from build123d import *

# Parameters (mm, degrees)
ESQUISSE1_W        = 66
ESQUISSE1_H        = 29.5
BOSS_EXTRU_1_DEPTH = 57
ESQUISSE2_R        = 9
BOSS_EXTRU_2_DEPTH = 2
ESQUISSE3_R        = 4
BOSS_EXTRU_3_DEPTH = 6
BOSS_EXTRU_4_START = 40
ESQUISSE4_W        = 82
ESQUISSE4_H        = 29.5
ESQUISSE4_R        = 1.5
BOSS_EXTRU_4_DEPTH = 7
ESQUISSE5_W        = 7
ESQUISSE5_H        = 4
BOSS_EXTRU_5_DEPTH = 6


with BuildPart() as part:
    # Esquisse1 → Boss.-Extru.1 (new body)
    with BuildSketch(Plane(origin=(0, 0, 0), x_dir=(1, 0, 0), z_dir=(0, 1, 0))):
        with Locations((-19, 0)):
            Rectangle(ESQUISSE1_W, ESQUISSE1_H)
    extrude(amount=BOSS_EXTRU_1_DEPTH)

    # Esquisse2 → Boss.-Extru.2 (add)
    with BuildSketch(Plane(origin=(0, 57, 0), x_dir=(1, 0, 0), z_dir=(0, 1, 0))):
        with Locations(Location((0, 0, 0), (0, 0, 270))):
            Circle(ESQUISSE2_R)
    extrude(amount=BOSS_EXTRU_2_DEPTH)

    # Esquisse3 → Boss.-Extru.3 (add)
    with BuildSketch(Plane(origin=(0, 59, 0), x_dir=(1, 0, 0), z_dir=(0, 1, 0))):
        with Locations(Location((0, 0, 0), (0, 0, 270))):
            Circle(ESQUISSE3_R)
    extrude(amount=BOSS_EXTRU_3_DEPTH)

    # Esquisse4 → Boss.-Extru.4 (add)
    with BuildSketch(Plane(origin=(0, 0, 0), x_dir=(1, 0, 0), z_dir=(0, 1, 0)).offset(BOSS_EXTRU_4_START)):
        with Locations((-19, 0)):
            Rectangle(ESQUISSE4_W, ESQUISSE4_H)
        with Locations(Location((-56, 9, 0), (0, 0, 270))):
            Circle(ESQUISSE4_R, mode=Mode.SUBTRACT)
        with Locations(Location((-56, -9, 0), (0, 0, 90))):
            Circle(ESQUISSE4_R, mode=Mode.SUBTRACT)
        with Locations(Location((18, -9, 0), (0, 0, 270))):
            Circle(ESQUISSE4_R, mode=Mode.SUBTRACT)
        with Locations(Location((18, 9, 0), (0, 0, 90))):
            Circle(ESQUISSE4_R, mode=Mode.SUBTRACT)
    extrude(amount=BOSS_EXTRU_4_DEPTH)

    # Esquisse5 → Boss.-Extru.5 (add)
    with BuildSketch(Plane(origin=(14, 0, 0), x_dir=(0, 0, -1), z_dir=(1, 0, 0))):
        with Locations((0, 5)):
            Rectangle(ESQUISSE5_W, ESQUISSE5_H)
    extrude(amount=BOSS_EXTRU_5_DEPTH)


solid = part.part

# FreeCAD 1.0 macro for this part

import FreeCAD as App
import Part
import Sketcher
from FreeCAD import Vector


def add_polygon(sketch, points):
    """Adds a closed chain of lines whose ends are joined by coincident constraints."""
    first, n = sketch.GeometryCount, len(points)
    for a, b in zip(points, points[1:] + points[:1]):
        sketch.addGeometry(Part.LineSegment(App.Vector(*a, 0), App.Vector(*b, 0)), False)
    for i in range(n):
        sketch.addConstraint(Sketcher.Constraint("Coincident", first + i, 2, first + (i + 1) % n, 1))

doc = App.newDocument("Part")
params = doc.addObject("Spreadsheet::Sheet", "Params")
for row, (alias, value) in enumerate([
    ("sketch1_width", "66 mm"),
    ("sketch1_height", "29.5 mm"),
    ("pad1_length", "57 mm"),
    ("sketch2_diameter", "18 mm"),
    ("pad2_length", "2 mm"),
    ("sketch3_diameter", "8 mm"),
    ("pad3_length", "6 mm"),
    ("sketch4_diameter", "3 mm"),
    ("sketch4_width", "82 mm"),
    ("sketch4_height", "29.5 mm"),
    ("pad4_length", "7 mm"),
    ("sketch5_width", "4 mm"),
    ("sketch5_height", "7 mm"),
    ("pad5_length", "6 mm"),
], start=1):
    params.set(f"A{row}", alias)
    params.set(f"B{row}", "=" + value)
    params.setAlias(f"B{row}", alias)

body = doc.addObject("PartDesign::Body", "Body")

sketch1 = doc.addObject("Sketcher::SketchObject", "Sketch")
body.addObject(sketch1)
sketch1.AttachmentSupport = (doc.XZ_Plane, [""])
sketch1.MapMode = "FlatFace"
add_polygon(sketch1, [(-52, -15), (-52, 15), (14, 15), (14, -15)])
sketch1.addConstraint([
    Sketcher.Constraint("Vertical", 0),
    Sketcher.Constraint("Horizontal", 1),
    Sketcher.Constraint("Vertical", 2),
    Sketcher.Constraint("Horizontal", 3),
    Sketcher.Constraint("DistanceX", 1, 1, 1, 2, 66.0),
    Sketcher.Constraint("DistanceY", 0, 1, 0, 2, 29.5),
    Sketcher.Constraint("DistanceX", 0, 2, -1, 1, 52.0),
    Sketcher.Constraint("DistanceY", -1, 1, 0, 2, 14.75),
])
sketch1.setExpression("Constraints[8]", "Params.sketch1_width")
sketch1.setExpression("Constraints[9]", "Params.sketch1_height")
pad1 = doc.addObject("PartDesign::Pad", "Pad")
body.addObject(pad1)
pad1.Profile = sketch1
pad1.setExpression("Length", "Params.pad1_length")
pad1.Reversed = True

sketch2 = doc.addObject("Sketcher::SketchObject", "Sketch001")
body.addObject(sketch2)
sketch2.AttachmentSupport = (doc.XZ_Plane, [""])
sketch2.MapMode = "FlatFace"
sketch2.AttachmentOffset = App.Placement(Vector(0, 0, -57), App.Rotation())
sketch2.addGeometry(Part.Circle(Vector(0, 0, 0), Vector(0, 0, 1), 9), False)
sketch2.addConstraint([
    Sketcher.Constraint("Coincident", 0, 3, -1, 1),
    Sketcher.Constraint("Diameter", 0, 18.0),
])
sketch2.setExpression("Constraints[1]", "Params.sketch2_diameter")
pad2 = doc.addObject("PartDesign::Pad", "Pad001")
body.addObject(pad2)
pad2.Profile = sketch2
pad2.setExpression("Length", "Params.pad2_length")
pad2.Reversed = True

sketch3 = doc.addObject("Sketcher::SketchObject", "Sketch002")
body.addObject(sketch3)
sketch3.AttachmentSupport = (doc.XZ_Plane, [""])
sketch3.MapMode = "FlatFace"
sketch3.AttachmentOffset = App.Placement(Vector(0, 0, -59), App.Rotation())
sketch3.addGeometry(Part.Circle(Vector(0, 0, 0), Vector(0, 0, 1), 4), False)
sketch3.addConstraint([
    Sketcher.Constraint("Coincident", 0, 3, -1, 1),
    Sketcher.Constraint("Diameter", 0, 8.0),
])
sketch3.setExpression("Constraints[1]", "Params.sketch3_diameter")
pad3 = doc.addObject("PartDesign::Pad", "Pad002")
body.addObject(pad3)
pad3.Profile = sketch3
pad3.setExpression("Length", "Params.pad3_length")
pad3.Reversed = True

sketch4 = doc.addObject("Sketcher::SketchObject", "Sketch003")
body.addObject(sketch4)
sketch4.AttachmentSupport = (doc.XZ_Plane, [""])
sketch4.MapMode = "FlatFace"
sketch4.AttachmentOffset = App.Placement(Vector(0, 0, -40), App.Rotation())
add_polygon(sketch4, [(-60, -14.8), (-60, 14.8), (22, 14.8), (22, -14.8)])
sketch4.addGeometry(Part.Circle(Vector(-56, 9, 0), Vector(0, 0, 1), 1.5), False)
sketch4.addGeometry(Part.Circle(Vector(18, 9, 0), Vector(0, 0, 1), 1.5), False)
sketch4.addGeometry(Part.Circle(Vector(-56, -9, 0), Vector(0, 0, 1), 1.5), False)
sketch4.addGeometry(Part.Circle(Vector(18, -9, 0), Vector(0, 0, 1), 1.5), False)
sketch4.addConstraint([
    Sketcher.Constraint("Vertical", 0),
    Sketcher.Constraint("Horizontal", 1),
    Sketcher.Constraint("Vertical", 2),
    Sketcher.Constraint("Horizontal", 3),
    Sketcher.Constraint("Equal", 4, 5),
    Sketcher.Constraint("Equal", 5, 6),
    Sketcher.Constraint("Equal", 6, 7),
    Sketcher.Constraint("Symmetric", 4, 3, 6, 3, -1),
    Sketcher.Constraint("Symmetric", 5, 3, 7, 3, -1),
    Sketcher.Constraint("Horizontal", 4, 3, 5, 3),
    Sketcher.Constraint("Diameter", 4, 3.0),
    Sketcher.Constraint("DistanceX", 1, 1, 1, 2, 82.0),
    Sketcher.Constraint("DistanceY", 0, 1, 0, 2, 29.5),
    Sketcher.Constraint("DistanceX", 4, 3, -1, 1, 56.0),
    Sketcher.Constraint("DistanceY", -1, 1, 4, 3, 9.0),
    Sketcher.Constraint("DistanceX", -1, 1, 5, 3, 18.0),
    Sketcher.Constraint("DistanceX", 0, 2, -1, 1, 60.0),
    Sketcher.Constraint("DistanceY", -1, 1, 0, 2, 14.75),
])
sketch4.setExpression("Constraints[14]", "Params.sketch4_diameter")
sketch4.setExpression("Constraints[15]", "Params.sketch4_width")
sketch4.setExpression("Constraints[16]", "Params.sketch4_height")
pad4 = doc.addObject("PartDesign::Pad", "Pad003")
body.addObject(pad4)
pad4.Profile = sketch4
pad4.setExpression("Length", "Params.pad4_length")
pad4.Reversed = True

sketch5 = doc.addObject("Sketcher::SketchObject", "Sketch004")
body.addObject(sketch5)
sketch5.AttachmentSupport = (doc.YZ_Plane, [""])
sketch5.MapMode = "FlatFace"
sketch5.AttachmentOffset = App.Placement(Vector(0, 0, 14), App.Rotation())
add_polygon(sketch5, [(7, 3.5), (3, 3.5), (3, -3.5), (7, -3.5)])
sketch5.addConstraint([
    Sketcher.Constraint("Horizontal", 0),
    Sketcher.Constraint("Vertical", 1),
    Sketcher.Constraint("Horizontal", 2),
    Sketcher.Constraint("Vertical", 3),
    Sketcher.Constraint("DistanceX", 0, 2, 0, 1, 4.0),
    Sketcher.Constraint("DistanceY", 1, 2, 1, 1, 7.0),
    Sketcher.Constraint("DistanceX", -1, 1, 0, 2, 3.0),
    Sketcher.Constraint("DistanceY", -1, 1, 0, 2, 3.5),
])
sketch5.setExpression("Constraints[8]", "Params.sketch5_width")
sketch5.setExpression("Constraints[9]", "Params.sketch5_height")
pad5 = doc.addObject("PartDesign::Pad", "Pad004")
body.addObject(pad5)
pad5.Profile = sketch5
pad5.setExpression("Length", "Params.pad5_length")

doc.recompute()
